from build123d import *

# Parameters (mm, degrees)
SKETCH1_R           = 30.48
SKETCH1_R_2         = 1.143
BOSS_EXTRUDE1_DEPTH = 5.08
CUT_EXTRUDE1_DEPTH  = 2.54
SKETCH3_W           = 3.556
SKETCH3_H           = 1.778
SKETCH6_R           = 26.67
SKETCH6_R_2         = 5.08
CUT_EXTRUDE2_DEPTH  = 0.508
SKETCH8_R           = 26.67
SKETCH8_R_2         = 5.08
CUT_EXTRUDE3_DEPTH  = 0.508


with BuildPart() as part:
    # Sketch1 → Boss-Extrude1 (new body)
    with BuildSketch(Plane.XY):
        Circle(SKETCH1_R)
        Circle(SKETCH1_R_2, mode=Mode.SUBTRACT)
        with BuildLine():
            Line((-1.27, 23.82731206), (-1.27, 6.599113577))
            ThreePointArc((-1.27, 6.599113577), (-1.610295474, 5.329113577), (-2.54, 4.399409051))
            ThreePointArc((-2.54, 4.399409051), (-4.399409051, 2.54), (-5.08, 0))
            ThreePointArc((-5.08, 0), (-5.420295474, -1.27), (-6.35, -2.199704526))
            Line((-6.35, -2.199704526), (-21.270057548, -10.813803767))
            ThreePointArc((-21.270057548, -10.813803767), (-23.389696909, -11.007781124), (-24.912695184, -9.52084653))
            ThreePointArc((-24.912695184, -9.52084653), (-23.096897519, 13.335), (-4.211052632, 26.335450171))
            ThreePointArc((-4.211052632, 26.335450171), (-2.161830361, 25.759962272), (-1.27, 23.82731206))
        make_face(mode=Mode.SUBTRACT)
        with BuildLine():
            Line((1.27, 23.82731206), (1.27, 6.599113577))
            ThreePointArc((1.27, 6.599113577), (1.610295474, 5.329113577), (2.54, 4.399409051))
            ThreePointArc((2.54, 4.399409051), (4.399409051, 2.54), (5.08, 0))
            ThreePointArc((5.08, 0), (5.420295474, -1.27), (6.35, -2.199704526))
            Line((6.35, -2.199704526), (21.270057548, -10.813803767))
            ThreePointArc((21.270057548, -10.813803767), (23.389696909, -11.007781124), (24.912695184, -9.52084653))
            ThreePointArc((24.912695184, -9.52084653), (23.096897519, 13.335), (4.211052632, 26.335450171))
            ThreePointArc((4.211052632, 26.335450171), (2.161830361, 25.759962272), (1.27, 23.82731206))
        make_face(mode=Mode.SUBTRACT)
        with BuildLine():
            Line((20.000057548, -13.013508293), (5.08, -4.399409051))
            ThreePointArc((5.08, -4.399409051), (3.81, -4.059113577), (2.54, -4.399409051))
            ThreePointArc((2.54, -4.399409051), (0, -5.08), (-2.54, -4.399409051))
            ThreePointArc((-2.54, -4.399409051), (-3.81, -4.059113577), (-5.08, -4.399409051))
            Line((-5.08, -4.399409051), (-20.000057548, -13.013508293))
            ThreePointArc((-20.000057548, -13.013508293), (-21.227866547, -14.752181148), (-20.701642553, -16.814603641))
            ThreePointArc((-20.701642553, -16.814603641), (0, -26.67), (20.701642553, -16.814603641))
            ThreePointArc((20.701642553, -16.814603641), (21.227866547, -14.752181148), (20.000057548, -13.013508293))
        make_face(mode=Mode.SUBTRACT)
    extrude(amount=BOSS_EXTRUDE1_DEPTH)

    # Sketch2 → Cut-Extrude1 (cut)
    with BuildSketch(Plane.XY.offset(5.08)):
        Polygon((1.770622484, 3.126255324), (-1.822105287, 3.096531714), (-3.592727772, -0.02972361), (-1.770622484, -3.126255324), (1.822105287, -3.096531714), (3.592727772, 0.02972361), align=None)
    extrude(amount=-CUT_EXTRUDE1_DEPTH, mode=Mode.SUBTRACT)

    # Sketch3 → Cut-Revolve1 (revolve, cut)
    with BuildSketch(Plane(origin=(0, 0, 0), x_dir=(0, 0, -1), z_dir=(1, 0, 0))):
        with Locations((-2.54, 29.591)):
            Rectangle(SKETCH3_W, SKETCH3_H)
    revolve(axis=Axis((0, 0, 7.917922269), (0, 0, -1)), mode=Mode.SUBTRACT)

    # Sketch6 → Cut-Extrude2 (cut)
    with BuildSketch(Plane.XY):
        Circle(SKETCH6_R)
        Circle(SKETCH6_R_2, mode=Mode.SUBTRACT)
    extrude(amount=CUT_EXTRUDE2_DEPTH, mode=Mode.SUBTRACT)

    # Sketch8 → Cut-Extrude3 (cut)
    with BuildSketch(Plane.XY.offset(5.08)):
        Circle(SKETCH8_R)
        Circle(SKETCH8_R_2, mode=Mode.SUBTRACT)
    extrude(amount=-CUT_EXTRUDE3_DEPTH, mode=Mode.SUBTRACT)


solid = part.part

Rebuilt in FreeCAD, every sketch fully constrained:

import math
import FreeCAD as App
import Part
import Sketcher

V = App.Vector
Q = App.Units.Quantity


def add_polygon(sketch, points):
    """Adds a closed chain of lines whose ends are joined by coincident constraints."""
    first, n = sketch.GeometryCount, len(points)
    for a, b in zip(points, points[1:] + points[:1]):
        sketch.addGeometry(Part.LineSegment(App.Vector(*a, 0), App.Vector(*b, 0)), False)
    for i in range(n):
        sketch.addConstraint(Sketcher.Constraint("Coincident", first + i, 2, first + (i + 1) % n, 1))

doc = App.newDocument("Part")
body = doc.addObject("PartDesign::Body", "Body")

# Sketch on XY plane
sketch1 = doc.addObject("Sketcher::SketchObject", "Sketch")
body.addObject(sketch1)
sketch1.AttachmentSupport = (doc.XY_Plane, [""])
sketch1.MapMode = "FlatFace"
sketch1.addGeometry([
    Part.Circle(V(0, 0, 0), V(0, 0, 1), 30.48),  # 0
    Part.LineSegment(V(5.08, -4.399409, 0), V(20.000058, -13.013508, 0)),  # 1
    Part.ArcOfCircle(Part.Circle(V(18.730058, -15.213213, 0), V(0, 0, 1), 2.54), math.radians(-39.08472), math.radians(60)),  # 2
    Part.ArcOfCircle(Part.Circle(V(0, 0, 0), V(0, 0, 1), 26.67), math.radians(-140.91528), math.radians(-39.08472)),  # 3
    Part.ArcOfCircle(Part.Circle(V(-18.730058, -15.213213, 0), V(0, 0, 1), 2.54), math.radians(120), math.radians(219.08472)),  # 4
    Part.LineSegment(V(-20.000058, -13.013508, 0), V(-5.08, -4.399409, 0)),  # 5
    Part.ArcOfCircle(Part.Circle(V(-3.81, -6.599114, 0), V(0, 0, 1), 2.54), math.radians(60), math.radians(120)),  # 6
    Part.ArcOfCircle(Part.Circle(V(0, 0, 0), V(0, 0, 1), 5.08), math.radians(-120), math.radians(-60)),  # 7
    Part.ArcOfCircle(Part.Circle(V(3.81, -6.599114, 0), V(0, 0, 1), 2.54), math.radians(60), math.radians(120)),  # 8
    Part.ArcOfCircle(Part.Circle(V(-3.81, 23.827312, 0), V(0, 0, 1), 2.54), math.radians(0), math.radians(99.08472)),  # 9
    Part.LineSegment(V(-1.27, 23.827312, 0), V(-1.27, 6.599114, 0)),  # 10
    Part.ArcOfCircle(Part.Circle(V(-3.81, 6.599114, 0), V(0, 0, 1), 2.54), math.radians(-60), math.radians(0)),  # 11
    Part.ArcOfCircle(Part.Circle(V(0, 0, 0), V(0, 0, 1), 5.08), math.radians(120), math.radians(180)),  # 12
    Part.ArcOfCircle(Part.Circle(V(-7.62, 0, 0), V(0, 0, 1), 2.54), math.radians(-60), math.radians(0)),  # 13
    Part.LineSegment(V(-6.35, -2.199705, 0), V(-21.270058, -10.813804, 0)),  # 14
    Part.ArcOfCircle(Part.Circle(V(-22.540058, -8.614099, 0), V(0, 0, 1), 2.54), math.radians(-159.08472), math.radians(-60)),  # 15
    Part.ArcOfCircle(Part.Circle(V(0, 0, 0), V(0, 0, 1), 26.67), math.radians(99.08472), math.radians(200.91528)),  # 16
    Part.Circle(V(0, 0, 0), V(0, 0, 1), 1.143),  # 17
    Part.LineSegment(V(1.27, 6.599114, 0), V(1.27, 23.827312, 0)),  # 18
    Part.ArcOfCircle(Part.Circle(V(3.81, 23.827312, 0), V(0, 0, 1), 2.54), math.radians(80.91528), math.radians(180)),  # 19
    Part.ArcOfCircle(Part.Circle(V(0, 0, 0), V(0, 0, 1), 26.67), math.radians(-20.91528), math.radians(80.91528)),  # 20
    Part.ArcOfCircle(Part.Circle(V(22.540058, -8.614099, 0), V(0, 0, 1), 2.54), math.radians(-120), math.radians(-20.91528)),  # 21
    Part.LineSegment(V(21.270058, -10.813804, 0), V(6.35, -2.199705, 0)),  # 22
    Part.ArcOfCircle(Part.Circle(V(7.62, 0, 0), V(0, 0, 1), 2.54), math.radians(180), math.radians(240)),  # 23
    Part.ArcOfCircle(Part.Circle(V(0, 0, 0), V(0, 0, 1), 5.08), math.radians(0), math.radians(60)),  # 24
    Part.ArcOfCircle(Part.Circle(V(3.81, 6.599114, 0), V(0, 0, 1), 2.54), math.radians(180), math.radians(240)),  # 25
], False)
sketch1.addConstraint([
    Sketcher.Constraint("Tangent", 1, 2, 2, 2),
    Sketcher.Constraint("Tangent", 2, 1, 3, 2),
    Sketcher.Constraint("Tangent", 3, 1, 4, 2),
    Sketcher.Constraint("Tangent", 4, 1, 5, 1),
    Sketcher.Constraint("Tangent", 5, 2, 6, 2),
    Sketcher.Constraint("Tangent", 6, 1, 7, 1),
    Sketcher.Constraint("Tangent", 7, 2, 8, 2),
    Sketcher.Constraint("Tangent", 8, 1, 1, 1),
    Sketcher.Constraint("Tangent", 9, 1, 10, 1),
    Sketcher.Constraint("Tangent", 10, 2, 11, 2),
    Sketcher.Constraint("Tangent", 11, 1, 12, 1),
    Sketcher.Constraint("Tangent", 12, 2, 13, 2),
    Sketcher.Constraint("Tangent", 13, 1, 14, 1),
    Sketcher.Constraint("Tangent", 14, 2, 15, 2),
    Sketcher.Constraint("Tangent", 15, 1, 16, 2),
    Sketcher.Constraint("Tangent", 16, 1, 9, 2),
    Sketcher.Constraint("Tangent", 18, 2, 19, 2),
    Sketcher.Constraint("Tangent", 19, 1, 20, 2),
    Sketcher.Constraint("Tangent", 20, 1, 21, 2),
    Sketcher.Constraint("Tangent", 21, 1, 22, 1),
    Sketcher.Constraint("Tangent", 22, 2, 23, 2),
    Sketcher.Constraint("Tangent", 23, 1, 24, 1),
    Sketcher.Constraint("Tangent", 24, 2, 25, 2),
    Sketcher.Constraint("Tangent", 25, 1, 18, 1),
    Sketcher.Constraint("Vertical", 10),
    Sketcher.Constraint("Vertical", 18),
    Sketcher.Constraint("Coincident", 0, 3, -1, 1),
    Sketcher.Constraint("Coincident", 3, 3, -1, 1),
    Sketcher.Constraint("Coincident", 7, 3, -1, 1),
    Sketcher.Constraint("Coincident", 12, 3, -1, 1),
    Sketcher.Constraint("Coincident", 16, 3, -1, 1),
    Sketcher.Constraint("Coincident", 17, 3, -1, 1),
    Sketcher.Constraint("Coincident", 20, 3, -1, 1),
    Sketcher.Constraint("Coincident", 24, 3, -1, 1),
    Sketcher.Constraint("Equal", 2, 4),
    Sketcher.Constraint("Equal", 4, 6),
    Sketcher.Constraint("Equal", 6, 8),
    Sketcher.Constraint("Equal", 8, 9),
    Sketcher.Constraint("Equal", 9, 11),
    Sketcher.Constraint("Equal", 7, 12),
    Sketcher.Constraint("Equal", 11, 13),
    Sketcher.Constraint("Equal", 13, 15),
    Sketcher.Constraint("Equal", 3, 16),
    Sketcher.Constraint("Equal", 15, 19),
    Sketcher.Constraint("Equal", 16, 20),
    Sketcher.Constraint("Equal", 19, 21),
    Sketcher.Constraint("Equal", 21, 23),
    Sketcher.Constraint("Equal", 12, 24),
    Sketcher.Constraint("Equal", 23, 25),
    Sketcher.Constraint("Symmetric", 1, 2, 4, 1, -2),
    Sketcher.Constraint("Symmetric", 14, 2, 21, 1, -2),
    Sketcher.Constraint("PointOnObject", 13, 3, -1),
    Sketcher.Constraint("Parallel", 5, 14),
    Sketcher.Constraint("Horizontal", 9, 3, 19, 3),
    Sketcher.Constraint("Horizontal", 5, 2, 6, 1),
    Sketcher.Constraint("Vertical", 6, 3, 9, 3),
    Sketcher.Constraint("Vertical", 5, 2, 12, 2),
    Sketcher.Constraint("Equal", 5, 14),
    Sketcher.Constraint("Diameter", 0, Q("2.4 in")),
    Sketcher.Constraint("Radius", 2, Q("0.1 in")),
    Sketcher.Constraint("Diameter", 17, Q("0.09 in")),
    Sketcher.Constraint("Radius", 3, Q("1.05 in")),
])
pad1 = doc.addObject("PartDesign::Pad", "Pad")
body.addObject(pad1)
pad1.Profile = sketch1
pad1.Length = Q("0.2 in")

# Sketch on XY plane
sketch2 = doc.addObject("Sketcher::SketchObject", "Sketch001")
body.addObject(sketch2)
sketch2.AttachmentSupport = (doc.XY_Plane, [""])
sketch2.MapMode = "FlatFace"
sketch2.AttachmentOffset = App.Placement(V(0, 0, 0.2 * 25.4), App.Rotation())
add_polygon(sketch2, [(1.770622, 3.126255), (-1.822105, 3.096532), (-3.592728, -0.029724), (-1.770622, -3.126255), (1.822105, -3.096532), (3.592728, 0.029724)])  # lines 0-5
sketch2.addConstraint([
    Sketcher.Constraint("Symmetric", 0, 2, 3, 2, -1, 1),
    Sketcher.Constraint("Symmetric", 1, 2, 4, 2, -1, 1),
    Sketcher.Constraint("Symmetric", 2, 2, 5, 2, -1, 1),
    Sketcher.Constraint("Equal", 0, 1),
    Sketcher.Constraint("Equal", 1, 2),
    Sketcher.Constraint("Distance", 0, 3.592851),
    Sketcher.Constraint("DistanceY", -1, 1, 0, 2, 3.096532),
    Sketcher.Constraint("DistanceY", 2, 2, 1, 2, 3.096532),
    Sketcher.Constraint("DistanceY", 3, 2, 1, 2, 3.066808),
])
pocket1 = doc.addObject("PartDesign::Pocket", "Pocket")
body.addObject(pocket1)
pocket1.Profile = sketch2
pocket1.Length = Q("0.1 in")

# Sketch on YZ plane
sketch3 = doc.addObject("Sketcher::SketchObject", "Sketch002")
body.addObject(sketch3)
sketch3.AttachmentSupport = (doc.YZ_Plane, [""])
sketch3.MapMode = "FlatFace"
add_polygon(sketch3, [(30.48, 4.318), (28.702, 4.318), (28.702, 0.762), (30.48, 0.762)])  # lines 0-3
sketch3.addConstraint([
    Sketcher.Constraint("Horizontal", 0),
    Sketcher.Constraint("Vertical", 1),
    Sketcher.Constraint("Horizontal", 2),
    Sketcher.Constraint("Vertical", 3),
    Sketcher.Constraint("DistanceX", 0, 2, 0, 1, Q("0.07 in")),
    Sketcher.Constraint("DistanceY", 1, 2, 1, 1, Q("0.14 in")),
    Sketcher.Constraint("DistanceX", -1, 1, 2, 2, Q("1.2 in")),
    Sketcher.Constraint("DistanceY", -1, 1, 0, 2, Q("0.17 in")),
])
groove = doc.addObject("PartDesign::Groove", "Groove")
body.addObject(groove)
groove.Profile = sketch3
groove.ReferenceAxis = (sketch3, ["V_Axis"])
groove.Angle = 360

# Sketch on XY plane
sketch4 = doc.addObject("Sketcher::SketchObject", "Sketch003")
body.addObject(sketch4)
sketch4.AttachmentSupport = (doc.XY_Plane, [""])
sketch4.MapMode = "FlatFace"
sketch4.addGeometry([
    Part.Circle(V(0, 0, 0), V(0, 0, 1), 26.67),
    Part.Circle(V(0, 0, 0), V(0, 0, 1), 5.08),
], False)
sketch4.addConstraint([
    Sketcher.Constraint("Coincident", 0, 3, -1, 1),
    Sketcher.Constraint("Coincident", 1, 3, -1, 1),
    Sketcher.Constraint("Diameter", 0, Q("2.1 in")),
    Sketcher.Constraint("Diameter", 1, Q("0.4 in")),
])
pocket2 = doc.addObject("PartDesign::Pocket", "Pocket001")
body.addObject(pocket2)
pocket2.Profile = sketch4
pocket2.Length = Q("0.02 in")
pocket2.Reversed = True

# Sketch on XY plane
sketch5 = doc.addObject("Sketcher::SketchObject", "Sketch004")
body.addObject(sketch5)
sketch5.AttachmentSupport = (doc.XY_Plane, [""])
sketch5.MapMode = "FlatFace"
sketch5.AttachmentOffset = App.Placement(V(0, 0, 0.2 * 25.4), App.Rotation())
sketch5.addGeometry([
    Part.Circle(V(0, 0, 0), V(0, 0, 1), 26.67),
    Part.Circle(V(0, 0, 0), V(0, 0, 1), 5.08),
], False)
sketch5.addConstraint([
    Sketcher.Constraint("Coincident", 0, 3, -1, 1),
    Sketcher.Constraint("Coincident", 1, 3, -1, 1),
    Sketcher.Constraint("Diameter", 0, Q("2.1 in")),
    Sketcher.Constraint("Diameter", 1, Q("0.4 in")),
])
pocket3 = doc.addObject("PartDesign::Pocket", "Pocket002")
body.addObject(pocket3)
pocket3.Profile = sketch5
pocket3.Length = Q("0.02 in")

doc.recompute()
